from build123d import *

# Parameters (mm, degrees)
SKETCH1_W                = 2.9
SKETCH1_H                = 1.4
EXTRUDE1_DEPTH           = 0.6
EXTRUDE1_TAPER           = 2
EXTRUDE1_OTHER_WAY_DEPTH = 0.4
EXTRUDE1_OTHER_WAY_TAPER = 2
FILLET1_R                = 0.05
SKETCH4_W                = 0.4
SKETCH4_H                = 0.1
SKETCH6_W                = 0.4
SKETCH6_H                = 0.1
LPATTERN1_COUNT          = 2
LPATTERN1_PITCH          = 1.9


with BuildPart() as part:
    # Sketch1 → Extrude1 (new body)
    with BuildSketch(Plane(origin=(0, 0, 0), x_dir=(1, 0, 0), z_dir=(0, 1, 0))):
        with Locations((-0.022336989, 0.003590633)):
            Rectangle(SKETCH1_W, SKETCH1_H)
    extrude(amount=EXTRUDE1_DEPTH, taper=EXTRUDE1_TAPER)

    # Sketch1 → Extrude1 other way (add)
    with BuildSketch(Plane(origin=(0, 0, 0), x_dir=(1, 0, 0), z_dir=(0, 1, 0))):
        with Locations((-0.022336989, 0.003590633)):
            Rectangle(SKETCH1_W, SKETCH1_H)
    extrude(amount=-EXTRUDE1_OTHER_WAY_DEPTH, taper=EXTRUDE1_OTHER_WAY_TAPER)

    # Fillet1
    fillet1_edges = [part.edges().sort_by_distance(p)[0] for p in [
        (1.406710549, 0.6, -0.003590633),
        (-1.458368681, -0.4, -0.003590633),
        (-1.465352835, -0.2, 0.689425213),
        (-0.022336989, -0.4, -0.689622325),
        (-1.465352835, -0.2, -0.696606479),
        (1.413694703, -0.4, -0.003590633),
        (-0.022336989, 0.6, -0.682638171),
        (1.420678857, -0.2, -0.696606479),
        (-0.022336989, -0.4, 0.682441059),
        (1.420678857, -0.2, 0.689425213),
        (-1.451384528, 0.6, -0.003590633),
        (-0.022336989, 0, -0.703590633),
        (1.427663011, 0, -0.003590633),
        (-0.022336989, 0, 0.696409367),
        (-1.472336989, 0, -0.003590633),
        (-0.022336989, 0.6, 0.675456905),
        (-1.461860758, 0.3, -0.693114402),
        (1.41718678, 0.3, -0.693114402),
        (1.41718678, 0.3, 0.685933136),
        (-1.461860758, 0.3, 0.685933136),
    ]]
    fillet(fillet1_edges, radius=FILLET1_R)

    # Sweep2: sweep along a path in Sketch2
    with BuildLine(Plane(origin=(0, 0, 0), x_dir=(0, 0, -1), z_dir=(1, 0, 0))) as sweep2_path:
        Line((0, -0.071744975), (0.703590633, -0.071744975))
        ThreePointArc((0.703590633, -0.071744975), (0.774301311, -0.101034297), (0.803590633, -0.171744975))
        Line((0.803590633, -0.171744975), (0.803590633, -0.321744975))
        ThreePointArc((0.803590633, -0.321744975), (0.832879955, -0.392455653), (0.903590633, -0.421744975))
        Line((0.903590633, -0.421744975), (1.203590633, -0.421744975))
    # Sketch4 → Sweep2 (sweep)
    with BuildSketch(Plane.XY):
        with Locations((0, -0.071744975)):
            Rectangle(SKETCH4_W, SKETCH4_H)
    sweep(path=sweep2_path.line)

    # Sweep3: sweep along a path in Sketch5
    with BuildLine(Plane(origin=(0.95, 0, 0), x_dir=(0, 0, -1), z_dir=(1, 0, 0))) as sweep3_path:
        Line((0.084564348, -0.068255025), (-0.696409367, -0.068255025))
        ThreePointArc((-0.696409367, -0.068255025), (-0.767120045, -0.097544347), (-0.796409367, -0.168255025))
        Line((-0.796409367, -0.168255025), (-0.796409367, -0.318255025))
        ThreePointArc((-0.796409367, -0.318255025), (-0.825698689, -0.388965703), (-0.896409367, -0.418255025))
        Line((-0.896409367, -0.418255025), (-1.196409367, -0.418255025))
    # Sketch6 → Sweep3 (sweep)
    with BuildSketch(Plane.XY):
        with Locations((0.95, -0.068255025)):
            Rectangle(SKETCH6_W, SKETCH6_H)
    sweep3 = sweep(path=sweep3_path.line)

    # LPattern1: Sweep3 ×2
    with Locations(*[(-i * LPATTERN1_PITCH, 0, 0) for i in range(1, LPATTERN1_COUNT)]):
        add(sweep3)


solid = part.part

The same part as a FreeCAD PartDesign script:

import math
import FreeCAD as App
import Part
import Sketcher
from FreeCAD import Vector

doc = App.newDocument("Part")
params = doc.addObject("Spreadsheet::Sheet", "Params")
for row, (alias, value) in enumerate([
    ("sketch1_width", "2.9 mm"),
    ("sketch1_height", "1.4 mm"),
    ("pad1_length", "0.6 mm"),
    ("pad1_taper", "-2 deg"),
    ("sketch2_width", "2.9 mm"),
    ("sketch2_height", "1.4 mm"),
    ("pad2_length", "0.4 mm"),
    ("pad2_taper", "-2 deg"),
    ("fillet_radius", "0.05 mm"),
    ("sketch3_width", "0.4 mm"),
    ("sketch3_height", "0.1 mm"),
    ("sketch4_radius", "0.1 mm"),
    ("sketch4_height", "0.3 mm"),
    ("sketch4_width", "0.15 mm"),
    ("sketch5_width", "0.4 mm"),
    ("sketch5_height", "0.1 mm"),
    ("sketch6_radius", "0.1 mm"),
    ("sketch6_height", "0.3 mm"),
    ("sketch6_width", "0.15 mm"),
    ("linearpattern_pitch", "1.9 mm"),
], start=1):
    params.set(f"A{row}", alias)
    params.set(f"B{row}", "=" + value)
    params.setAlias(f"B{row}", alias)

body = doc.addObject("PartDesign::Body", "Body")

# Sketch on XZ plane
sketch1 = body.newObject("Sketcher::SketchObject", "Sketch")
sketch1.AttachmentSupport = (doc.getObject("XZ_Plane"), [""])
sketch1.MapMode = "FlatFace"
sketch1.addGeometry([
    Part.LineSegment(Vector(-1.5, -0.7, 0), Vector(-1.5, 0.7, 0)),
    Part.LineSegment(Vector(-1.5, 0.7, 0), Vector(1.4, 0.7, 0)),
    Part.LineSegment(Vector(1.4, 0.7, 0), Vector(1.4, -0.7, 0)),
    Part.LineSegment(Vector(1.4, -0.7, 0), Vector(-1.5, -0.7, 0)),
], False)
sketch1.addConstraint([
    Sketcher.Constraint("Coincident", 0, 2, 1, 1),
    Sketcher.Constraint("Coincident", 1, 2, 2, 1),
    Sketcher.Constraint("Coincident", 2, 2, 3, 1),
    Sketcher.Constraint("Coincident", 3, 2, 0, 1),
    Sketcher.Constraint("Vertical", 0),
    Sketcher.Constraint("Horizontal", 1),
    Sketcher.Constraint("Vertical", 2),
    Sketcher.Constraint("Horizontal", 3),
    Sketcher.Constraint("DistanceX", 1, 1, 1, 2, 2.9),
    Sketcher.Constraint("DistanceY", 0, 1, 0, 2, 1.4),
    Sketcher.Constraint("DistanceY", -1, 1, 0, 2, 0.696409),
    Sketcher.Constraint("DistanceX", 0, 2, -1, 1, 1.472337),
])
sketch1.setExpression("Constraints[8]", "Params.sketch1_width")
sketch1.setExpression("Constraints[9]", "Params.sketch1_height")
pad1 = body.newObject("PartDesign::Pad", "Pad")
pad1.Profile = sketch1
pad1.setExpression("Length", "Params.pad1_length")
pad1.Reversed = True
pad1.setExpression("TaperAngle", "Params.pad1_taper")

# Sketch on XZ plane
sketch2 = body.newObject("Sketcher::SketchObject", "Sketch001")
sketch2.AttachmentSupport = (doc.getObject("XZ_Plane"), [""])
sketch2.MapMode = "FlatFace"
sketch2.addGeometry([
    Part.LineSegment(Vector(-1.5, -0.7, 0), Vector(-1.5, 0.7, 0)),
    Part.LineSegment(Vector(-1.5, 0.7, 0), Vector(1.4, 0.7, 0)),
    Part.LineSegment(Vector(1.4, 0.7, 0), Vector(1.4, -0.7, 0)),
    Part.LineSegment(Vector(1.4, -0.7, 0), Vector(-1.5, -0.7, 0)),
], False)
sketch2.addConstraint([
    Sketcher.Constraint("Coincident", 0, 2, 1, 1),
    Sketcher.Constraint("Coincident", 1, 2, 2, 1),
    Sketcher.Constraint("Coincident", 2, 2, 3, 1),
    Sketcher.Constraint("Coincident", 3, 2, 0, 1),
    Sketcher.Constraint("Vertical", 0),
    Sketcher.Constraint("Horizontal", 1),
    Sketcher.Constraint("Vertical", 2),
    Sketcher.Constraint("Horizontal", 3),
    Sketcher.Constraint("DistanceX", 1, 1, 1, 2, 2.9),
    Sketcher.Constraint("DistanceY", 0, 1, 0, 2, 1.4),
    Sketcher.Constraint("DistanceY", -1, 1, 0, 2, 0.696409),
    Sketcher.Constraint("DistanceX", 0, 2, -1, 1, 1.472337),
])
sketch2.setExpression("Constraints[8]", "Params.sketch2_width")
sketch2.setExpression("Constraints[9]", "Params.sketch2_height")
pad2 = body.newObject("PartDesign::Pad", "Pad001")
pad2.Profile = sketch2
pad2.setExpression("Length", "Params.pad2_length")
pad2.setExpression("TaperAngle", "Params.pad2_taper")
doc.recompute()

fillet = body.newObject("PartDesign::Fillet", "Fillet")
fillet.Base = (pad2, ["Edge1"])
fillet.UseAllEdges = True
fillet.setExpression("Radius", "Params.fillet_radius")

# Sketch on XY plane
sketch3 = body.newObject("Sketcher::SketchObject", "Sketch002")
sketch3.AttachmentSupport = (doc.getObject("XY_Plane"), [""])
sketch3.MapMode = "FlatFace"
sketch3.addGeometry([
    Part.LineSegment(Vector(-0.2, -0.02, 0), Vector(-0.2, -0.12, 0)),
    Part.LineSegment(Vector(-0.2, -0.12, 0), Vector(0.2, -0.12, 0)),
    Part.LineSegment(Vector(0.2, -0.12, 0), Vector(0.2, -0.02, 0)),
    Part.LineSegment(Vector(0.2, -0.02, 0), Vector(-0.2, -0.02, 0)),
], False)
sketch3.addConstraint([
    Sketcher.Constraint("Coincident", 0, 2, 1, 1),
    Sketcher.Constraint("Coincident", 1, 2, 2, 1),
    Sketcher.Constraint("Coincident", 2, 2, 3, 1),
    Sketcher.Constraint("Coincident", 3, 2, 0, 1),
    Sketcher.Constraint("Vertical", 0),
    Sketcher.Constraint("Horizontal", 1),
    Sketcher.Constraint("Vertical", 2),
    Sketcher.Constraint("Horizontal", 3),
    Sketcher.Constraint("DistanceX", 1, 1, 1, 2, 0.4),
    Sketcher.Constraint("DistanceY", 0, 2, 0, 1, 0.1),
    Sketcher.Constraint("DistanceX", 0, 2, -1, 1, 0.2),
    Sketcher.Constraint("DistanceY", 0, 2, -1, 1, 0.121745),
])
sketch3.setExpression("Constraints[8]", "Params.sketch3_width")
sketch3.setExpression("Constraints[9]", "Params.sketch3_height")

# Sketch on YZ plane
sketch4 = body.newObject("Sketcher::SketchObject", "Sketch003")
sketch4.AttachmentSupport = (doc.getObject("YZ_Plane"), [""])
sketch4.MapMode = "FlatFace"
sketch4.addGeometry([
    Part.LineSegment(Vector(-0.07, 0, 0), Vector(-0.07, -0.7, 0)),  # 0
    Part.ArcOfCircle(Part.Circle(Vector(-0.17, -0.7, 0), Vector(0, 0, 1), 0.1), math.radians(-90), math.radians(0)),  # 1
    Part.LineSegment(Vector(-0.17, -0.8, 0), Vector(-0.32, -0.8, 0)),  # 2
    Part.ArcOfCircle(Part.Circle(Vector(-0.32, -0.9, 0), Vector(0, 0, 1), 0.1), math.radians(90), math.radians(180)),  # 3
    Part.LineSegment(Vector(-0.42, -0.9, 0), Vector(-0.42, -1.2, 0)),  # 4
], False)
sketch4.addConstraint([
    Sketcher.Constraint("Tangent", 0, 2, 1, 2),
    Sketcher.Constraint("Tangent", 1, 1, 2, 1),
    Sketcher.Constraint("Tangent", 2, 2, 3, 1),
    Sketcher.Constraint("Tangent", 3, 2, 4, 1),
    Sketcher.Constraint("Vertical", 0),
    Sketcher.Constraint("Horizontal", 2),
    Sketcher.Constraint("Vertical", 4),
    Sketcher.Constraint("Equal", 1, 3),
    Sketcher.Constraint("PointOnObject", 0, 1, -1),
    Sketcher.Constraint("Radius", 1, 0.1),
    Sketcher.Constraint("DistanceY", 4, 2, 4, 1, 0.3),
    Sketcher.Constraint("DistanceX", 2, 2, 2, 1, 0.15),
    Sketcher.Constraint("DistanceY", 0, 2, 0, 1, 0.703591),
    Sketcher.Constraint("DistanceX", 1, 3, -1, 1, 0.171745),
])
sketch4.setExpression("Constraints[9]", "Params.sketch4_radius")
sketch4.setExpression("Constraints[10]", "Params.sketch4_height")
sketch4.setExpression("Constraints[11]", "Params.sketch4_width")
doc.recompute()

additivepipe = body.newObject("PartDesign::AdditivePipe", "AdditivePipe")
additivepipe.Profile = sketch3
additivepipe.Spine = (sketch4, ["Edge1", "Edge2", "Edge3", "Edge4", "Edge5"])

# Sketch on XY plane
sketch5 = body.newObject("Sketcher::SketchObject", "Sketch004")
sketch5.AttachmentSupport = (doc.getObject("XY_Plane"), [""])
sketch5.MapMode = "FlatFace"
sketch5.addGeometry([
    Part.LineSegment(Vector(0.75, -0.02, 0), Vector(0.75, -0.12, 0)),
    Part.LineSegment(Vector(0.75, -0.12, 0), Vector(1.15, -0.12, 0)),
    Part.LineSegment(Vector(1.15, -0.12, 0), Vector(1.15, -0.02, 0)),
    Part.LineSegment(Vector(1.15, -0.02, 0), Vector(0.75, -0.02, 0)),
], False)
sketch5.addConstraint([
    Sketcher.Constraint("Coincident", 0, 2, 1, 1),
    Sketcher.Constraint("Coincident", 1, 2, 2, 1),
    Sketcher.Constraint("Coincident", 2, 2, 3, 1),
    Sketcher.Constraint("Coincident", 3, 2, 0, 1),
    Sketcher.Constraint("Vertical", 0),
    Sketcher.Constraint("Horizontal", 1),
    Sketcher.Constraint("Vertical", 2),
    Sketcher.Constraint("Horizontal", 3),
    Sketcher.Constraint("DistanceX", 1, 1, 1, 2, 0.4),
    Sketcher.Constraint("DistanceY", 0, 2, 0, 1, 0.1),
    Sketcher.Constraint("DistanceX", -1, 1, 0, 2, 0.75),
    Sketcher.Constraint("DistanceY", 0, 2, -1, 1, 0.118255),
])
sketch5.setExpression("Constraints[8]", "Params.sketch5_width")
sketch5.setExpression("Constraints[9]", "Params.sketch5_height")

# Sketch on YZ plane
sketch6 = body.newObject("Sketcher::SketchObject", "Sketch005")
sketch6.AttachmentSupport = (doc.getObject("YZ_Plane"), [""])
sketch6.MapMode = "FlatFace"
sketch6.AttachmentOffset = App.Placement(Vector(0, 0, 0.95), App.Rotation())
sketch6.addGeometry([
    Part.LineSegment(Vector(-0.07, -0.08, 0), Vector(-0.07, 0.7, 0)),  # 0
    Part.ArcOfCircle(Part.Circle(Vector(-0.17, 0.7, 0), Vector(0, 0, 1), 0.1), math.radians(0), math.radians(90)),  # 1
    Part.LineSegment(Vector(-0.17, 0.8, 0), Vector(-0.32, 0.8, 0)),  # 2
    Part.ArcOfCircle(Part.Circle(Vector(-0.32, 0.9, 0), Vector(0, 0, 1), 0.1), math.radians(180), math.radians(270)),  # 3
    Part.LineSegment(Vector(-0.42, 0.9, 0), Vector(-0.42, 1.2, 0)),  # 4
], False)
sketch6.addConstraint([
    Sketcher.Constraint("Tangent", 0, 2, 1, 1),
    Sketcher.Constraint("Tangent", 1, 2, 2, 1),
    Sketcher.Constraint("Tangent", 2, 2, 3, 2),
    Sketcher.Constraint("Tangent", 3, 1, 4, 1),
    Sketcher.Constraint("Vertical", 0),
    Sketcher.Constraint("Horizontal", 2),
    Sketcher.Constraint("Vertical", 4),
    Sketcher.Constraint("Equal", 1, 3),
    Sketcher.Constraint("Radius", 1, 0.1),
    Sketcher.Constraint("DistanceY", 4, 1, 4, 2, 0.3),
    Sketcher.Constraint("DistanceX", 2, 2, 2, 1, 0.15),
    Sketcher.Constraint("DistanceY", 0, 1, 0, 2, 0.780974),
    Sketcher.Constraint("DistanceY", -1, 1, 1, 3, 0.696409),
    Sketcher.Constraint("DistanceX", 1, 3, -1, 1, 0.168255),
])
sketch6.setExpression("Constraints[8]", "Params.sketch6_radius")
sketch6.setExpression("Constraints[9]", "Params.sketch6_height")
sketch6.setExpression("Constraints[10]", "Params.sketch6_width")
doc.recompute()

additivepipe2 = body.newObject("PartDesign::AdditivePipe", "AdditivePipe001")
additivepipe2.Profile = sketch5
additivepipe2.Spine = (sketch6, ["Edge1", "Edge2", "Edge3", "Edge4", "Edge5"])
doc.recompute()

linearpattern = body.newObject("PartDesign::LinearPattern", "LinearPattern")
linearpattern.Originals = [additivepipe2]
linearpattern.Direction = (doc.getObject("X_Axis"), [""])
linearpattern.Mode = "offset"
linearpattern.setExpression("Offset", "Params.linearpattern_pitch")
linearpattern.Occurrences = 2
linearpattern.Reversed = True
body.Tip = linearpattern

doc.recompute()
